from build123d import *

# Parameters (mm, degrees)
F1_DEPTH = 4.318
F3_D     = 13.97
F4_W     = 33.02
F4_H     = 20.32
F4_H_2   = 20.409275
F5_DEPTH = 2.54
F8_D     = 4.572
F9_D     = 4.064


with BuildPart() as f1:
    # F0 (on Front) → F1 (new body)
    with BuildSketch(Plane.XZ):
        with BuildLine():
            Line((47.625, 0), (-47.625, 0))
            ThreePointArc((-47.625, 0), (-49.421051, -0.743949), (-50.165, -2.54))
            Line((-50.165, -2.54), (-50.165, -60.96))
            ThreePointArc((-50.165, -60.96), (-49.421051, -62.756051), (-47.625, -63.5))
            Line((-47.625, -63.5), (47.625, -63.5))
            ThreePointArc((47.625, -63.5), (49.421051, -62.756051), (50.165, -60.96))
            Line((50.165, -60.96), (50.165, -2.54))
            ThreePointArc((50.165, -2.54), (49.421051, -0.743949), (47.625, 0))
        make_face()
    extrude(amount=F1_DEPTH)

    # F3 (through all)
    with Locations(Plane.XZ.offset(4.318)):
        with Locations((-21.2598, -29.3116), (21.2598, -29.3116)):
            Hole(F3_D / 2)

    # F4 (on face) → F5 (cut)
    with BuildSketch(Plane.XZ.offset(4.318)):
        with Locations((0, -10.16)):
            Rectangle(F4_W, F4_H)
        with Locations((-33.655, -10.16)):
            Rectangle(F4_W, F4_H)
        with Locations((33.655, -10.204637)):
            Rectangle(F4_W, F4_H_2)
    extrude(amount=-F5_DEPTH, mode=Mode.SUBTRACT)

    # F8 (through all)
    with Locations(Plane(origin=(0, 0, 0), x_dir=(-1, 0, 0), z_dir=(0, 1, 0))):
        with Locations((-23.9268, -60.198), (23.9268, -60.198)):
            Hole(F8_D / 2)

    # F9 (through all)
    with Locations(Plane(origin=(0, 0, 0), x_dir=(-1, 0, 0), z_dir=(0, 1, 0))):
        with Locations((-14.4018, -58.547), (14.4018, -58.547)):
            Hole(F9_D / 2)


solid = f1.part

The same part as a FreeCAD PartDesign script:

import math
import FreeCAD as App
import Part
import Sketcher
Q = App.Units.Quantity


def add_polygon(sketch, points):
    """Adds a closed chain of lines whose ends are joined by coincident constraints."""
    first, n = sketch.GeometryCount, len(points)
    for a, b in zip(points, points[1:] + points[:1]):
        sketch.addGeometry(Part.LineSegment(App.Vector(*a, 0), App.Vector(*b, 0)), False)
    for i in range(n):
        sketch.addConstraint(Sketcher.Constraint("Coincident", first + i, 2, first + (i + 1) % n, 1))

doc = App.newDocument("Part")
body = doc.addObject("PartDesign::Body", "Body")

sketch1 = body.newObject("Sketcher::SketchObject", "Sketch")
sketch1.AttachmentSupport = (doc.getObject("XZ_Plane"), [""])
sketch1.MapMode = "FlatFace"
sketch1.addGeometry(Part.LineSegment(App.Vector(47.6, 0, 0), App.Vector(-47.6, 0, 0)), False)
sketch1.addGeometry(Part.ArcOfCircle(Part.Circle(App.Vector(-47.6, -2.5, 0), App.Vector(0, 0, 1), 2.5), math.radians(90), math.radians(180)), False)
sketch1.addGeometry(Part.LineSegment(App.Vector(-50.2, -2.5, 0), App.Vector(-50.2, -61, 0)), False)
sketch1.addGeometry(Part.ArcOfCircle(Part.Circle(App.Vector(-47.6, -61, 0), App.Vector(0, 0, 1), 2.5), math.radians(-180), math.radians(-90)), False)
sketch1.addGeometry(Part.LineSegment(App.Vector(-47.6, -63.5, 0), App.Vector(47.6, -63.5, 0)), False)
sketch1.addGeometry(Part.ArcOfCircle(Part.Circle(App.Vector(47.6, -61, 0), App.Vector(0, 0, 1), 2.5), math.radians(-90), math.radians(0)), False)
sketch1.addGeometry(Part.LineSegment(App.Vector(50.2, -61, 0), App.Vector(50.2, -2.5, 0)), False)
sketch1.addGeometry(Part.ArcOfCircle(Part.Circle(App.Vector(47.6, -2.5, 0), App.Vector(0, 0, 1), 2.5), math.radians(0), math.radians(90)), False)
sketch1.addConstraint(Sketcher.Constraint("Tangent", 0, 2, 1, 1))
sketch1.addConstraint(Sketcher.Constraint("Tangent", 1, 2, 2, 1))
sketch1.addConstraint(Sketcher.Constraint("Tangent", 2, 2, 3, 1))
sketch1.addConstraint(Sketcher.Constraint("Tangent", 3, 2, 4, 1))
sketch1.addConstraint(Sketcher.Constraint("Tangent", 4, 2, 5, 1))
sketch1.addConstraint(Sketcher.Constraint("Tangent", 5, 2, 6, 1))
sketch1.addConstraint(Sketcher.Constraint("Tangent", 6, 2, 7, 1))
sketch1.addConstraint(Sketcher.Constraint("Tangent", 7, 2, 0, 1))
sketch1.addConstraint(Sketcher.Constraint("Horizontal", 0))
sketch1.addConstraint(Sketcher.Constraint("Vertical", 2))
sketch1.addConstraint(Sketcher.Constraint("Horizontal", 4))
sketch1.addConstraint(Sketcher.Constraint("Vertical", 6))
sketch1.addConstraint(Sketcher.Constraint("Equal", 1, 3))
sketch1.addConstraint(Sketcher.Constraint("Equal", 3, 5))
sketch1.addConstraint(Sketcher.Constraint("Equal", 5, 7))
sketch1.addConstraint(Sketcher.Constraint("Symmetric", 0, 2, 7, 2, -1, 1))
sketch1.addConstraint(Sketcher.Constraint("Radius", 1, Q("0.1 in")))
sketch1.addConstraint(Sketcher.Constraint("DistanceY", 2, 2, 2, 1, Q("2.3 in")))
sketch1.addConstraint(Sketcher.Constraint("DistanceX", 0, 2, 0, 1, Q("3.75 in")))
pad1 = body.newObject("PartDesign::Pad", "Pad")
pad1.Profile = sketch1
pad1.Length = Q("0.17 in")

sketch2 = body.newObject("Sketcher::SketchObject", "Sketch001")
sketch2.AttachmentSupport = (doc.getObject("XZ_Plane"), [""])
sketch2.MapMode = "FlatFace"
sketch2.AttachmentOffset = App.Placement(App.Vector(0, 0, 0.17 * 25.4), App.Rotation())
sketch2.addGeometry(Part.Circle(App.Vector(-21, -29, 0), App.Vector(0, 0, 1), 7), False)
sketch2.addGeometry(Part.Circle(App.Vector(21, -29, 0), App.Vector(0, 0, 1), 7), False)
sketch2.addConstraint(Sketcher.Constraint("Equal", 0, 1))
sketch2.addConstraint(Sketcher.Constraint("Symmetric", 0, 3, 1, 3, -2))
sketch2.addConstraint(Sketcher.Constraint("Diameter", 0, Q("0.55 in")))
sketch2.addConstraint(Sketcher.Constraint("DistanceX", 0, 3, -1, 1, Q("0.837 in")))
sketch2.addConstraint(Sketcher.Constraint("DistanceY", 0, 3, -1, 1, Q("1.154 in")))
doc.recompute()
hole = body.newObject("PartDesign::Hole", "Hole")
hole.Profile = sketch2
hole.ThreadType = "None"
hole.Diameter = Q("0.55 in")
hole.DepthType = "ThroughAll"

sketch3 = body.newObject("Sketcher::SketchObject", "Sketch002")
sketch3.AttachmentSupport = (doc.getObject("XZ_Plane"), [""])
sketch3.MapMode = "FlatFace"
sketch3.AttachmentOffset = App.Placement(App.Vector(0, 0, 0.17 * 25.4), App.Rotation())
add_polygon(sketch3, [(-17, 0), (-17, -20), (17, -20), (17, 0)])
add_polygon(sketch3, [(-50, 0), (-50, -20), (-17, -20), (-17, 0)])
add_polygon(sketch3, [(17, 0), (17, -20), (50, -20), (50, 0)])
sketch3.addConstraint(Sketcher.Constraint("Vertical", 0))
sketch3.addConstraint(Sketcher.Constraint("Horizontal", 1))
sketch3.addConstraint(Sketcher.Constraint("Vertical", 2))
sketch3.addConstraint(Sketcher.Constraint("Horizontal", 3))
sketch3.addConstraint(Sketcher.Constraint("Vertical", 4))
sketch3.addConstraint(Sketcher.Constraint("Horizontal", 5))
sketch3.addConstraint(Sketcher.Constraint("Vertical", 6))
sketch3.addConstraint(Sketcher.Constraint("Horizontal", 7))
sketch3.addConstraint(Sketcher.Constraint("Vertical", 8))
sketch3.addConstraint(Sketcher.Constraint("Horizontal", 9))
sketch3.addConstraint(Sketcher.Constraint("Vertical", 10))
sketch3.addConstraint(Sketcher.Constraint("Horizontal", 11))
sketch3.addConstraint(Sketcher.Constraint("Symmetric", 2, 2, 3, 2, -1, 1))
sketch3.addConstraint(Sketcher.Constraint("Symmetric", 7, 2, 10, 2, -1, 1))
sketch3.addConstraint(Sketcher.Constraint("Symmetric", 6, 2, 11, 2, -2))
sketch3.addConstraint(Sketcher.Constraint("Horizontal", 1, 2, 4, 2))
sketch3.addConstraint(Sketcher.Constraint("Equal", 3, 5))
sketch3.addConstraint(Sketcher.Constraint("DistanceX", 1, 1, 1, 2, Q("1.3 in")))
sketch3.addConstraint(Sketcher.Constraint("DistanceY", 0, 2, 0, 1, Q("0.8 in")))
sketch3.addConstraint(Sketcher.Constraint("DistanceX", 5, 2, 8, 2, Q("1.35 in")))
sketch3.addConstraint(Sketcher.Constraint("DistanceY", 8, 2, 8, 1, 20.409275))
pocket1 = body.newObject("PartDesign::Pocket", "Pocket")
pocket1.Profile = sketch3
pocket1.Length = Q("0.1 in")

sketch4 = body.newObject("Sketcher::SketchObject", "Sketch003")
sketch4.AttachmentSupport = (doc.getObject("XZ_Plane"), [""])
sketch4.MapMode = "FlatFace"
sketch4.addGeometry(Part.Circle(App.Vector(23.9, -60.2, 0), App.Vector(0, 0, 1), 2.3), False)
sketch4.addGeometry(Part.Circle(App.Vector(-23.9, -60.2, 0), App.Vector(0, 0, 1), 2.3), False)
sketch4.addConstraint(Sketcher.Constraint("Equal", 0, 1))
sketch4.addConstraint(Sketcher.Constraint("Symmetric", 0, 3, 1, 3, -2))
sketch4.addConstraint(Sketcher.Constraint("Diameter", 0, Q("0.18 in")))
sketch4.addConstraint(Sketcher.Constraint("DistanceY", 0, 3, -1, 1, Q("2.37 in")))
sketch4.addConstraint(Sketcher.Constraint("DistanceX", -1, 1, 0, 3, Q("0.942 in")))
doc.recompute()
hole2 = body.newObject("PartDesign::Hole", "Hole001")
hole2.Profile = sketch4
hole2.ThreadType = "None"
hole2.Diameter = Q("0.18 in")
hole2.DepthType = "ThroughAll"
hole2.Reversed = True

sketch5 = body.newObject("Sketcher::SketchObject", "Sketch004")
sketch5.AttachmentSupport = (doc.getObject("XZ_Plane"), [""])
sketch5.MapMode = "FlatFace"
sketch5.addGeometry(Part.Circle(App.Vector(14.4, -58.5, 0), App.Vector(0, 0, 1), 2), False)
sketch5.addGeometry(Part.Circle(App.Vector(-14.4, -58.5, 0), App.Vector(0, 0, 1), 2), False)
sketch5.addConstraint(Sketcher.Constraint("Equal", 0, 1))
sketch5.addConstraint(Sketcher.Constraint("Symmetric", 0, 3, 1, 3, -2))
sketch5.addConstraint(Sketcher.Constraint("Diameter", 0, Q("0.16 in")))
sketch5.addConstraint(Sketcher.Constraint("DistanceX", -1, 1, 0, 3, Q("0.567 in")))
sketch5.addConstraint(Sketcher.Constraint("DistanceY", 0, 3, -1, 1, Q("2.305 in")))
doc.recompute()
hole3 = body.newObject("PartDesign::Hole", "Hole002")
hole3.Profile = sketch5
hole3.ThreadType = "None"
hole3.Diameter = Q("0.16 in")
hole3.DepthType = "ThroughAll"
hole3.Reversed = True

doc.recompute()
